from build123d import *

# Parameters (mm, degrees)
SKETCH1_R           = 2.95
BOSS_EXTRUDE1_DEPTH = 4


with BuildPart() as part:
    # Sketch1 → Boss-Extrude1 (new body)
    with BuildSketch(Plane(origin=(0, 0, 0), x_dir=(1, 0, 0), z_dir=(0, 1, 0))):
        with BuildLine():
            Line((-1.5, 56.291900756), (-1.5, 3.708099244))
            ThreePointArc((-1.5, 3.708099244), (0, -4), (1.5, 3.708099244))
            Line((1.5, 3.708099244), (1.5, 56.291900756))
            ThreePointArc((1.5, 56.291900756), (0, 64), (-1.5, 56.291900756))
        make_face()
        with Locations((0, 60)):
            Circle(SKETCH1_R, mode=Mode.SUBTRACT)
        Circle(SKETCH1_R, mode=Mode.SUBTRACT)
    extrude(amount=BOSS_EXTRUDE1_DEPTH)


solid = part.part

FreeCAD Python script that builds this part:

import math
import FreeCAD as App
import Part
import Sketcher

doc = App.newDocument("Part")
body = doc.addObject("PartDesign::Body", "Body")

sketch1 = body.newObject("Sketcher::SketchObject", "Sketch")
sketch1.AttachmentSupport = (doc.getObject("XZ_Plane"), [""])
sketch1.MapMode = "FlatFace"
sketch1.addGeometry([
    Part.LineSegment(App.Vector(-1.5, -56.3, 0), App.Vector(-1.5, -3.7, 0)),
    Part.ArcOfCircle(Part.Circle(App.Vector(0, 0, 0), App.Vector(0, 0, 1), 4), math.radians(-68), math.radians(248)),
    Part.LineSegment(App.Vector(1.5, -3.7, 0), App.Vector(1.5, -56.3, 0)),
    Part.ArcOfCircle(Part.Circle(App.Vector(0, -60, 0), App.Vector(0, 0, 1), 4), math.radians(112), math.radians(428)),
    Part.Circle(App.Vector(0, 0, 0), App.Vector(0, 0, 1), 3),
    Part.Circle(App.Vector(0, -60, 0), App.Vector(0, 0, 1), 3),
], False)
sketch1.addConstraint([
    Sketcher.Constraint("Coincident", 0, 2, 1, 2),
    Sketcher.Constraint("Coincident", 1, 1, 2, 1),
    Sketcher.Constraint("Coincident", 2, 2, 3, 2),
    Sketcher.Constraint("Coincident", 3, 1, 0, 1),
    Sketcher.Constraint("Vertical", 0),
    Sketcher.Constraint("Vertical", 2),
    Sketcher.Constraint("Coincident", 1, 3, -1, 1),
    Sketcher.Constraint("Coincident", 4, 3, -1, 1),
    Sketcher.Constraint("Coincident", 5, 3, 3, 3),
    Sketcher.Constraint("Equal", 1, 3),
    Sketcher.Constraint("Equal", 4, 5),
    Sketcher.Constraint("Symmetric", 2, 2, 3, 1, -2),
    Sketcher.Constraint("Radius", 1, 4.0),
    Sketcher.Constraint("Diameter", 4, 5.9),
    Sketcher.Constraint("DistanceY", 3, 3, -1, 1, 60.0),
    Sketcher.Constraint("DistanceX", 0, 2, 1, 1, 3.0),
])
pad1 = body.newObject("PartDesign::Pad", "Pad")
pad1.Profile = sketch1
pad1.Length = 4
pad1.Reversed = True

doc.recompute()
